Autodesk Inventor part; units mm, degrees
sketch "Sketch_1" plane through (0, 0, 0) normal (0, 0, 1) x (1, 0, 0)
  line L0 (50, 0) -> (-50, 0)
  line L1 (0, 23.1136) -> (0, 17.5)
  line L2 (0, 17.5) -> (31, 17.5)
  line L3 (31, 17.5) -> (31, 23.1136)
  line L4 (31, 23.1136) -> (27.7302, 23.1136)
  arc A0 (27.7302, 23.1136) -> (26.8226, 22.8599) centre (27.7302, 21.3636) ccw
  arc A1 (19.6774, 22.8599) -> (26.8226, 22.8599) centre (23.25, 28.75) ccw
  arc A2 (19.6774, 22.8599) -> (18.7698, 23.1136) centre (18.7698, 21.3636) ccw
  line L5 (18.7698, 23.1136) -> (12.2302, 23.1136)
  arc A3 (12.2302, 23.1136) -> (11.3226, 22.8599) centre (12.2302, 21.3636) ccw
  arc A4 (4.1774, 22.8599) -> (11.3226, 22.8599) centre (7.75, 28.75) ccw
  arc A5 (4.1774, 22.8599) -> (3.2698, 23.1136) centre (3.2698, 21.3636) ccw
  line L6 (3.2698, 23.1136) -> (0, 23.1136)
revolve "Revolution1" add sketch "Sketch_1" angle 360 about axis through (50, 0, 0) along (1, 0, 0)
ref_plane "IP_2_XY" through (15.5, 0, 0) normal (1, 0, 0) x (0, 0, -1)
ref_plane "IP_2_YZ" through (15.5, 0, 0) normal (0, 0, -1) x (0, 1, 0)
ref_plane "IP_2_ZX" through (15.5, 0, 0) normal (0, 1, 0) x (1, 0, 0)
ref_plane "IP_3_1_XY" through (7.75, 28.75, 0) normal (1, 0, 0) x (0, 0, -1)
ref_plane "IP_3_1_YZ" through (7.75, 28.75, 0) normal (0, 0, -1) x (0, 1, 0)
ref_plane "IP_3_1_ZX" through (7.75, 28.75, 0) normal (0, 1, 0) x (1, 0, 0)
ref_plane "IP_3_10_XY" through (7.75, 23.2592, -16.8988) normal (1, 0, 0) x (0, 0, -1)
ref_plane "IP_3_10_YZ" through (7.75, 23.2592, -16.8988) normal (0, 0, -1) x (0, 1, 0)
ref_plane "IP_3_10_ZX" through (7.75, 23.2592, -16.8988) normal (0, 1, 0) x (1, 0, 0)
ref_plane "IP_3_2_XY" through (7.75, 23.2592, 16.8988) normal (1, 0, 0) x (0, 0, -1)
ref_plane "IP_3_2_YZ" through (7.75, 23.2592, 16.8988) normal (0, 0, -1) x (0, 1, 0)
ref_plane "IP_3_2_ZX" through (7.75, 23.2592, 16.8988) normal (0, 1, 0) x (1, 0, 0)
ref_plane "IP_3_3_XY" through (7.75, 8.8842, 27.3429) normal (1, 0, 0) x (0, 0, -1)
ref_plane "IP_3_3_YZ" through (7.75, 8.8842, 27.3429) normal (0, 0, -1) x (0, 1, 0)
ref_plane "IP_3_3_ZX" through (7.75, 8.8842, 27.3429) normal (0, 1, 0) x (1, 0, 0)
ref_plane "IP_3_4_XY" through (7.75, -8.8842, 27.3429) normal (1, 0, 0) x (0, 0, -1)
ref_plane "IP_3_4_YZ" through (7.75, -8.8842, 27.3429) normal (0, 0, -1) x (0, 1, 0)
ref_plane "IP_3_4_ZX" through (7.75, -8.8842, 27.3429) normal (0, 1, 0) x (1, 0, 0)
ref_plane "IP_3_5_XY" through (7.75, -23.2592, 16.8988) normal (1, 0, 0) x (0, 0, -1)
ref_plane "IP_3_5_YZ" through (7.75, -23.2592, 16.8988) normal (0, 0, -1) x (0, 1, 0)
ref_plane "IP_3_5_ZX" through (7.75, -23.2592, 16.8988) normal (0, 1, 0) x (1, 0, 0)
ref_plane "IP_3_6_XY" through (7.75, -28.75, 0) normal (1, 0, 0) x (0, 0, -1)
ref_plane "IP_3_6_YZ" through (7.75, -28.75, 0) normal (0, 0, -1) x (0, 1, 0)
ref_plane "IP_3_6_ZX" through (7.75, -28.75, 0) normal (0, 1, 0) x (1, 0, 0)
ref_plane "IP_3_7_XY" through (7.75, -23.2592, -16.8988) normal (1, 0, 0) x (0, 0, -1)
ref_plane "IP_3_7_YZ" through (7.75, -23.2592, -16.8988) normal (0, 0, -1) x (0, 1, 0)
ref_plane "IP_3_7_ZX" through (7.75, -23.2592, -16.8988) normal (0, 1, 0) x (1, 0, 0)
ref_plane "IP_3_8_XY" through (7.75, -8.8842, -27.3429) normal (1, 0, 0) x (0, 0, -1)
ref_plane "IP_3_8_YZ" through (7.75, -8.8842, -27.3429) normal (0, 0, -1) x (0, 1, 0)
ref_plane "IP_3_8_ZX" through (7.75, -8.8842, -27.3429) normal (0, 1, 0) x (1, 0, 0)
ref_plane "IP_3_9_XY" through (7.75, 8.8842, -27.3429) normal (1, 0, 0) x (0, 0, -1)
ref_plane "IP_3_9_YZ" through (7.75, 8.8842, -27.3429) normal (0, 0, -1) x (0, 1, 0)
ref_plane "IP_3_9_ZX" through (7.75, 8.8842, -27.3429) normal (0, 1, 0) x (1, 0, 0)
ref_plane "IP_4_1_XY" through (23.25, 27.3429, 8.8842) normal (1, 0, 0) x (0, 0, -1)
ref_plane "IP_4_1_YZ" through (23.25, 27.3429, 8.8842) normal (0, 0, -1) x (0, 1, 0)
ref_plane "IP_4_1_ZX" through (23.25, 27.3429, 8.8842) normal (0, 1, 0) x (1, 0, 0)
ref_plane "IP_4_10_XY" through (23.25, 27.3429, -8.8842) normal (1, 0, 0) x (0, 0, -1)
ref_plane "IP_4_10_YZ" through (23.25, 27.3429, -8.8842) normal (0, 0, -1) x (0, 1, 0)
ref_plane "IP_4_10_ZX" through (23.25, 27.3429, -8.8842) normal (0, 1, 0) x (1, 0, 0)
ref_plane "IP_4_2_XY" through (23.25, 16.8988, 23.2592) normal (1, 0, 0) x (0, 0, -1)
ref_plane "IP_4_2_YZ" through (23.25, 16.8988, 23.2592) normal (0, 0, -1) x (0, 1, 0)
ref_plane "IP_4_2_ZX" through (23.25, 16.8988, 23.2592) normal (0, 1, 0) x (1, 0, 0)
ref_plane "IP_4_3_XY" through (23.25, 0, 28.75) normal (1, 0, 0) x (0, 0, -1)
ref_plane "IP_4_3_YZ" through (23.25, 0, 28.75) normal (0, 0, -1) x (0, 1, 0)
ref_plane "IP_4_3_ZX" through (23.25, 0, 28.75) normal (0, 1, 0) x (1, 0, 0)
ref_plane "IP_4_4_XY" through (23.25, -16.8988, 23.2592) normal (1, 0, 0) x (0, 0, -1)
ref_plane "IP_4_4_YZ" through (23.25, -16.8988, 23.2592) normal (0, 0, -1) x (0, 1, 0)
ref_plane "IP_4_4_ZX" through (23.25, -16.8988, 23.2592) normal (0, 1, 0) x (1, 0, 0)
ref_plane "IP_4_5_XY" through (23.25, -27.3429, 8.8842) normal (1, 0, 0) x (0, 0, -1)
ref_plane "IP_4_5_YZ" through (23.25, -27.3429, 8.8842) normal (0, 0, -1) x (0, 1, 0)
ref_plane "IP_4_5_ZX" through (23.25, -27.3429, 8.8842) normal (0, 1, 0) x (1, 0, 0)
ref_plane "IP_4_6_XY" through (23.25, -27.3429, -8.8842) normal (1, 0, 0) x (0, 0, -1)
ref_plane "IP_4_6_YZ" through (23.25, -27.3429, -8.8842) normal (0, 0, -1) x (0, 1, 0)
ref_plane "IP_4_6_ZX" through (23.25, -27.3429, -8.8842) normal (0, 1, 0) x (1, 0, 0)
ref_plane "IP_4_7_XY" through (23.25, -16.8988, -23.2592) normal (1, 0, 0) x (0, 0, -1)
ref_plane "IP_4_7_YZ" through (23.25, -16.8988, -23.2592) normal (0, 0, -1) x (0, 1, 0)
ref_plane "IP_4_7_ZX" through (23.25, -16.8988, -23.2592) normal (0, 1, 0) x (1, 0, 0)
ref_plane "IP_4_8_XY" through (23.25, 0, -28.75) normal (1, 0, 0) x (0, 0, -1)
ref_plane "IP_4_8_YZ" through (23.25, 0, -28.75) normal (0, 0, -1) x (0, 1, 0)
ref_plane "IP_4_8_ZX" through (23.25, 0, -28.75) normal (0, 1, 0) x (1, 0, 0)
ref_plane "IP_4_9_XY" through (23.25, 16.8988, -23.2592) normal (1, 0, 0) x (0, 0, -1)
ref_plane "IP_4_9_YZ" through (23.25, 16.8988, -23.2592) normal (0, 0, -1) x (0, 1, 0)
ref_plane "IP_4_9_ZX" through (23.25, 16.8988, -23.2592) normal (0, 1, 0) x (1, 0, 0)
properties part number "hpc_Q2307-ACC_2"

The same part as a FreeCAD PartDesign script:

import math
import FreeCAD as App
import Part
import Sketcher
from FreeCAD import Vector
Q = App.Units.Quantity

doc = App.newDocument("Part")
params = doc.addObject("Spreadsheet::Sheet", "Params")
for row, (alias, value) in enumerate([
    ("sketch1_width", "31 mm"),
    ("sketch1_radius", "1.75 mm"),
    ("revolution_angle", "360 deg"),
], start=1):
    params.set(f"A{row}", alias)
    params.set(f"B{row}", "=" + value)
    params.setAlias(f"B{row}", alias)

body = doc.addObject("PartDesign::Body", "Body")

# Sketch on XY plane
sketch1 = doc.addObject("Sketcher::SketchObject", "Sketch")
body.addObject(sketch1)
sketch1.AttachmentSupport = (doc.XY_Plane, [""])
sketch1.MapMode = "FlatFace"
sketch1.addGeometry([
    Part.LineSegment(Vector(3.2698, 23.1136, 0), Vector(0, 23.1136, 0)),  # 0
    Part.LineSegment(Vector(0, 23.1136, 0), Vector(0, 17.5, 0)),  # 1
    Part.LineSegment(Vector(0, 17.5, 0), Vector(31, 17.5, 0)),  # 2
    Part.LineSegment(Vector(31, 17.5, 0), Vector(31, 23.1136, 0)),  # 3
    Part.LineSegment(Vector(31, 23.1136, 0), Vector(27.7302, 23.1136, 0)),  # 4
    Part.ArcOfCircle(Part.Circle(Vector(27.7302, 21.3636, 0), Vector(0, 0, 1), 1.75), math.radians(90), math.radians(121.239444)),  # 5
    Part.ArcOfCircle(Part.Circle(Vector(23.25, 28.75, 0), Vector(0, 0, 1), 6.888886), math.radians(-121.23862), math.radians(-58.76138)),  # 6
    Part.ArcOfCircle(Part.Circle(Vector(18.7698, 21.3636, 0), Vector(0, 0, 1), 1.750043), math.radians(58.760556), math.radians(90)),  # 7
    Part.LineSegment(Vector(18.7698, 23.1136, 0), Vector(12.2302, 23.1136, 0)),  # 8
    Part.ArcOfCircle(Part.Circle(Vector(12.2302, 21.3636, 0), Vector(0, 0, 1), 1.75), math.radians(90), math.radians(121.239444)),  # 9
    Part.ArcOfCircle(Part.Circle(Vector(7.75, 28.75, 0), Vector(0, 0, 1), 6.888886), math.radians(-121.23862), math.radians(-58.76138)),  # 10
    Part.ArcOfCircle(Part.Circle(Vector(3.2698, 21.3636, 0), Vector(0, 0, 1), 1.750043), math.radians(58.760556), math.radians(90)),  # 11
], False)
sketch1.addConstraint([
    Sketcher.Constraint("Coincident", 0, 2, 1, 1),
    Sketcher.Constraint("Coincident", 1, 2, 2, 1),
    Sketcher.Constraint("Coincident", 2, 2, 3, 1),
    Sketcher.Constraint("Coincident", 3, 2, 4, 1),
    Sketcher.Constraint("Tangent", 4, 2, 5, 1),
    Sketcher.Constraint("Tangent", 5, 2, 6, 2),
    Sketcher.Constraint("Tangent", 6, 1, 7, 1),
    Sketcher.Constraint("Tangent", 7, 2, 8, 1),
    Sketcher.Constraint("Tangent", 8, 2, 9, 1),
    Sketcher.Constraint("Tangent", 9, 2, 10, 2),
    Sketcher.Constraint("Tangent", 10, 1, 11, 1),
    Sketcher.Constraint("Tangent", 11, 2, 0, 1),
    Sketcher.Constraint("Horizontal", 0),
    Sketcher.Constraint("Vertical", 1),
    Sketcher.Constraint("Horizontal", 2),
    Sketcher.Constraint("Vertical", 3),
    Sketcher.Constraint("Horizontal", 4),
    Sketcher.Constraint("Horizontal", 8),
    Sketcher.Constraint("Equal", 5, 7),
    Sketcher.Constraint("Equal", 7, 9),
    Sketcher.Constraint("Equal", 6, 10),
    Sketcher.Constraint("Equal", 9, 11),
    Sketcher.Constraint("PointOnObject", 0, 2, -2),
    Sketcher.Constraint("Horizontal", 5, 3, 7, 3),
    Sketcher.Constraint("Horizontal", 6, 3, 10, 3),
    Sketcher.Constraint("Horizontal", 9, 3, 11, 3),
    Sketcher.Constraint("Equal", 0, 4),
    Sketcher.Constraint("DistanceX", 2, 1, 2, 2, Q("31 mm")),
    Sketcher.Constraint("Radius", 5, Q("1.75 mm")),
    Sketcher.Constraint("Radius", 6, Q("6.889 mm")),
    Sketcher.Constraint("DistanceY", -1, 1, 1, 2, Q("17.5 mm")),
    Sketcher.Constraint("DistanceX", 9, 3, 5, 3, Q("15.5 mm")),
    Sketcher.Constraint("DistanceY", -1, 1, 6, 3, Q("28.75 mm")),
    Sketcher.Constraint("DistanceY", -1, 1, 6, 1, Q("22.86 mm")),
])
sketch1.setExpression("Constraints[27]", "Params.sketch1_width")
sketch1.setExpression("Constraints[28]", "Params.sketch1_radius")
revolution = doc.addObject("PartDesign::Revolution", "Revolution")
body.addObject(revolution)
revolution.Profile = sketch1
revolution.ReferenceAxis = (sketch1, ["H_Axis"])
revolution.setExpression("Angle", "Params.revolution_angle")

doc.recompute()
